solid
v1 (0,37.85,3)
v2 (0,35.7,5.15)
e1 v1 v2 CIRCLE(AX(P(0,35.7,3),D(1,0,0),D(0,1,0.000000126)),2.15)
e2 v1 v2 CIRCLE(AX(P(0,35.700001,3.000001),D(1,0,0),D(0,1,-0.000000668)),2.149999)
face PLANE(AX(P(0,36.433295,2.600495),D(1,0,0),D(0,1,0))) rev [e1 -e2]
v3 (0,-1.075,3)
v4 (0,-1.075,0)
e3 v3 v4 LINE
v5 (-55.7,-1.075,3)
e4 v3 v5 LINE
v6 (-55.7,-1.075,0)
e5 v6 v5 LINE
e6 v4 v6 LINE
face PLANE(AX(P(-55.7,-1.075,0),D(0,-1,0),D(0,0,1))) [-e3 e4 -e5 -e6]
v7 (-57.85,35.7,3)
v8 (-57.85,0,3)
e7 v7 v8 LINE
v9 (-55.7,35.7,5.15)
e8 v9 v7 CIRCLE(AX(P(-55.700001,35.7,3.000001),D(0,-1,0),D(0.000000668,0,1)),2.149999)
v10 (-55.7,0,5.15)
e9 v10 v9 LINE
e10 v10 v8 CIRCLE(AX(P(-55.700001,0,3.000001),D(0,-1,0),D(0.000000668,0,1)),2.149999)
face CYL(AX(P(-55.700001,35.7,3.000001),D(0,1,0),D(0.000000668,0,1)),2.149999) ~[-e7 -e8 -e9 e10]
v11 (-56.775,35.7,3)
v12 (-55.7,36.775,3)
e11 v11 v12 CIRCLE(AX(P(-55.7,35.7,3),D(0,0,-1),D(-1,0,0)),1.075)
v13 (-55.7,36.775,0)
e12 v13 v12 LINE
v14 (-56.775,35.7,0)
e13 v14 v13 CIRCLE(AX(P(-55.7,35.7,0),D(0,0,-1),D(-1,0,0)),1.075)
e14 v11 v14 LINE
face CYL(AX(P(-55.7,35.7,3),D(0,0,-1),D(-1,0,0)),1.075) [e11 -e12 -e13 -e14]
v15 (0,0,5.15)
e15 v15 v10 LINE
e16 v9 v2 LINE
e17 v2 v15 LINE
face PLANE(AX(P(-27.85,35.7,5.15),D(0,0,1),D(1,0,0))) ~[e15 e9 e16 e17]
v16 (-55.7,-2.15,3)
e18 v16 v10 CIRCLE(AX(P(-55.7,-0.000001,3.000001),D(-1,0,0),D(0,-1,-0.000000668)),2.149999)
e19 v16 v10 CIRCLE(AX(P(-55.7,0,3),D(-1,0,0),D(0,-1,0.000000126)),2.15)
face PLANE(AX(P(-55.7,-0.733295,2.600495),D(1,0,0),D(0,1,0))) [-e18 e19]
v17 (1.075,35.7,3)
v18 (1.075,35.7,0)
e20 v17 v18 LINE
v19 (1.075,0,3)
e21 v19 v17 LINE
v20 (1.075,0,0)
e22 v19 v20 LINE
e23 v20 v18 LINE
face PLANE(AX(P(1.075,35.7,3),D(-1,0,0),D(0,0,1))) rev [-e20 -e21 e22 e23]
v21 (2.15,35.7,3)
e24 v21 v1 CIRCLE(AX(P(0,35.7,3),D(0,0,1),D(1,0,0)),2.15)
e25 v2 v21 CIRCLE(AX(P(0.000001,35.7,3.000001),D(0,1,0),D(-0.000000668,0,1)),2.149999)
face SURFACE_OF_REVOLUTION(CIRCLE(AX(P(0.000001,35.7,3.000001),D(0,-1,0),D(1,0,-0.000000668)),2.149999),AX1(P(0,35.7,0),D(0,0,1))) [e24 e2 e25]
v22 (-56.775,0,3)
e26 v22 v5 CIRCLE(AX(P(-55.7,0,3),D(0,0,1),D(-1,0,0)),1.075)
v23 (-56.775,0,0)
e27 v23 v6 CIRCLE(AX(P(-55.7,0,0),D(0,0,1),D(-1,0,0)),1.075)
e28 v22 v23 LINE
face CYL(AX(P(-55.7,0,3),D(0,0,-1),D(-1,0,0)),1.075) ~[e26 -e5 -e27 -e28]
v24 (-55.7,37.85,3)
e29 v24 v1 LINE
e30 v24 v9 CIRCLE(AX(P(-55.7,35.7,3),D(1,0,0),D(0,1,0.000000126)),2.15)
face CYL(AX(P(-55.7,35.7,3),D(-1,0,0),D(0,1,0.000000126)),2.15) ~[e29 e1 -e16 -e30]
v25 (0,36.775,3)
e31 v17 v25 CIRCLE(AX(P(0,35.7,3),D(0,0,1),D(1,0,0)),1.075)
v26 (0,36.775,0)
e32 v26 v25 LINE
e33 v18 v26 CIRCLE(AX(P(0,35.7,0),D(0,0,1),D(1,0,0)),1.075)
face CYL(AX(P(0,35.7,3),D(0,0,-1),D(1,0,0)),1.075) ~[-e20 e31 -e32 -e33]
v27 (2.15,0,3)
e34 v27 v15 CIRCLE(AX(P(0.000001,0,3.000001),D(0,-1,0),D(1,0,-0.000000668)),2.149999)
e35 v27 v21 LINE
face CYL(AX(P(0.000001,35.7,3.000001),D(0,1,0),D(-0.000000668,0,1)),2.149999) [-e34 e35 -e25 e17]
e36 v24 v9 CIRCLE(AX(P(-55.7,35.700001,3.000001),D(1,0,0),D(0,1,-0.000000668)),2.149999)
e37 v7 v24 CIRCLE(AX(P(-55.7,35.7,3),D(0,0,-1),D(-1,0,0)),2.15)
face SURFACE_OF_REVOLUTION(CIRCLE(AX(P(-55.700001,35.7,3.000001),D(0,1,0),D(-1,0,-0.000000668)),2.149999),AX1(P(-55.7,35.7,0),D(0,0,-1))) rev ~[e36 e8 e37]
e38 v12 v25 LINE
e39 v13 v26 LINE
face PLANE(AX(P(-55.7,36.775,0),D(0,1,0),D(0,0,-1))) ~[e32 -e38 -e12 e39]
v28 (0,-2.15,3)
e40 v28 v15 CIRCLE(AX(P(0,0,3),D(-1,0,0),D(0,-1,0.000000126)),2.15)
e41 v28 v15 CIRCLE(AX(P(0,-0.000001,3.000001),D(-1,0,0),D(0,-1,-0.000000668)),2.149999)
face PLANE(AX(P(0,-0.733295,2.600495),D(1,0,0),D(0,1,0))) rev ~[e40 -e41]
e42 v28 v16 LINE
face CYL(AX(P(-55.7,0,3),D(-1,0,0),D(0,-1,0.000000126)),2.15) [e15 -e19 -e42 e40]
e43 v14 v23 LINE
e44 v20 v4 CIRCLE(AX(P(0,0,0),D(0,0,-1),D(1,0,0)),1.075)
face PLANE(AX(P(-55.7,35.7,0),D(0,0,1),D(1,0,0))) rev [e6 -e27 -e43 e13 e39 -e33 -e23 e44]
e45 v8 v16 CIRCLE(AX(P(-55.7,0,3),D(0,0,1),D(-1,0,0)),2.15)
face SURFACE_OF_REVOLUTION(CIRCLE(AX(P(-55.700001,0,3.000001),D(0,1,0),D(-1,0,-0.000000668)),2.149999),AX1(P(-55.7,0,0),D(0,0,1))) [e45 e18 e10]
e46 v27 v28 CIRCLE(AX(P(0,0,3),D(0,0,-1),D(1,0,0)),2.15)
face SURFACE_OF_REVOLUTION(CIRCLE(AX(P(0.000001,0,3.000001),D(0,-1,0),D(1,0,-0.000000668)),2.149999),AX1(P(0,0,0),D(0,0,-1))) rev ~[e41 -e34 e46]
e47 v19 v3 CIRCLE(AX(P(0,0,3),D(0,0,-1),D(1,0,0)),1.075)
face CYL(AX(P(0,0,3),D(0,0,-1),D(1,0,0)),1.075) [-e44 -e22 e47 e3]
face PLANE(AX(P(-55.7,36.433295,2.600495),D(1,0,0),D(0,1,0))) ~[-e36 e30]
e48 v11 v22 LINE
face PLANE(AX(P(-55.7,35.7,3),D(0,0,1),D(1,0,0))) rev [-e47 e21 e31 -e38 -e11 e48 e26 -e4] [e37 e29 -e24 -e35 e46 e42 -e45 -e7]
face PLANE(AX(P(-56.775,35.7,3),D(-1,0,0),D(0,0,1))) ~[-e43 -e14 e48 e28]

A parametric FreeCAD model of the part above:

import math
import FreeCAD as App
import Part
import Sketcher

doc = App.newDocument("Part")
params = doc.addObject("Spreadsheet::Sheet", "Params")
for row, (alias, value) in enumerate([
    ("sketch1_height", "3 mm"),
    ("sketch1_radius", "2.149999 mm"),
    ("revolution_angle", "90 deg"),
    ("sketch2_height", "3 mm"),
    ("sketch2_radius", "2.15 mm"),
    ("pad1_length", "27.85 mm"),
    ("sketch3_height", "3 mm"),
    ("sketch3_radius", "2.149999 mm"),
    ("pad2_length", "17.85 mm"),
    ("sketch4_height", "3 mm"),
    ("sketch4_radius", "2.149999 mm"),
    ("pad3_length", "17.85 mm"),
    ("sketch5_height", "3 mm"),
    ("sketch5_radius", "2.15 mm"),
    ("pad4_length", "27.85 mm"),
    ("sketch6_height", "3 mm"),
    ("sketch6_radius", "2.149999 mm"),
    ("revolution2_angle", "90 deg"),
], start=1):
    params.set(f"A{row}", alias)
    params.set(f"B{row}", "=" + value)
    params.setAlias(f"B{row}", alias)

body = doc.addObject("PartDesign::Body", "Body")

sketch1 = body.newObject("Sketcher::SketchObject", "Sketch")
sketch1.AttachmentSupport = (doc.getObject("XZ_Plane"), [""])
sketch1.MapMode = "FlatFace"
sketch1.addGeometry([
    Part.LineSegment(App.Vector(0, 5.2, 0), App.Vector(0, 0, 0)),
    Part.LineSegment(App.Vector(0, 0, 0), App.Vector(1.1, 0, 0)),
    Part.LineSegment(App.Vector(1.1, 0, 0), App.Vector(1.1, 3, 0)),
    Part.LineSegment(App.Vector(1.1, 3, 0), App.Vector(2.1, 3, 0)),
    Part.ArcOfCircle(Part.Circle(App.Vector(0, 3, 0), App.Vector(0, 0, 1), 2.1), math.radians(0), math.radians(90)),
], False)
sketch1.addConstraint([
    Sketcher.Constraint("Coincident", 0, 2, 1, 1),
    Sketcher.Constraint("Coincident", 1, 2, 2, 1),
    Sketcher.Constraint("Coincident", 2, 2, 3, 1),
    Sketcher.Constraint("Coincident", 3, 2, 4, 1),
    Sketcher.Constraint("Coincident", 4, 2, 0, 1),
    Sketcher.Constraint("Vertical", 0),
    Sketcher.Constraint("Horizontal", 1),
    Sketcher.Constraint("Vertical", 2),
    Sketcher.Constraint("Horizontal", 3),
    Sketcher.Constraint("Coincident", 0, 2, -1, 1),
    Sketcher.Constraint("PointOnObject", 4, 3, -2),
    Sketcher.Constraint("Horizontal", 4, 3, 2, 2),
    Sketcher.Constraint("Equal", 1, 3),
    Sketcher.Constraint("DistanceY", 2, 1, 2, 2, 3.0),
    Sketcher.Constraint("Radius", 4, 2.149999),
])
sketch1.setExpression("Constraints[13]", "Params.sketch1_height")
sketch1.setExpression("Constraints[14]", "Params.sketch1_radius")
revolution = body.newObject("PartDesign::Revolution", "Revolution")
revolution.Profile = sketch1
revolution.ReferenceAxis = (sketch1, ["V_Axis"])
revolution.setExpression("Angle", "Params.revolution_angle")
revolution.Reversed = True

sketch2 = body.newObject("Sketcher::SketchObject", "Sketch001")
sketch2.AttachmentSupport = (doc.getObject("YZ_Plane"), [""])
sketch2.MapMode = "FlatFace"
sketch2.addGeometry([
    Part.LineSegment(App.Vector(0, 5.2, 0), App.Vector(0, 0, 0)),
    Part.LineSegment(App.Vector(0, 0, 0), App.Vector(-1.1, 0, 0)),
    Part.LineSegment(App.Vector(-1.1, 0, 0), App.Vector(-1.1, 3, 0)),
    Part.LineSegment(App.Vector(-1.1, 3, 0), App.Vector(-2.1, 3, 0)),
    Part.ArcOfCircle(Part.Circle(App.Vector(0, 3, 0), App.Vector(0, 0, 1), 2.2), math.radians(90), math.radians(180)),
], False)
sketch2.addConstraint([
    Sketcher.Constraint("Coincident", 0, 2, 1, 1),
    Sketcher.Constraint("Coincident", 1, 2, 2, 1),
    Sketcher.Constraint("Coincident", 2, 2, 3, 1),
    Sketcher.Constraint("Coincident", 3, 2, 4, 2),
    Sketcher.Constraint("Coincident", 4, 1, 0, 1),
    Sketcher.Constraint("Vertical", 0),
    Sketcher.Constraint("Horizontal", 1),
    Sketcher.Constraint("Vertical", 2),
    Sketcher.Constraint("Horizontal", 3),
    Sketcher.Constraint("Coincident", 0, 2, -1, 1),
    Sketcher.Constraint("PointOnObject", 4, 3, -2),
    Sketcher.Constraint("Horizontal", 4, 3, 2, 2),
    Sketcher.Constraint("Equal", 1, 3),
    Sketcher.Constraint("DistanceY", 2, 1, 2, 2, 3.0),
    Sketcher.Constraint("Radius", 4, 2.15),
])
sketch2.setExpression("Constraints[13]", "Params.sketch2_height")
sketch2.setExpression("Constraints[14]", "Params.sketch2_radius")
pad1 = body.newObject("PartDesign::Pad", "Pad")
pad1.Profile = sketch2
pad1.setExpression("Length", "Params.pad1_length")
pad1.Reversed = True

sketch3 = body.newObject("Sketcher::SketchObject", "Sketch002")
sketch3.AttachmentSupport = (doc.getObject("XZ_Plane"), [""])
sketch3.MapMode = "FlatFace"
sketch3.addGeometry([
    Part.ArcOfCircle(Part.Circle(App.Vector(0, 3, 0), App.Vector(0, 0, 1), 2.1), math.radians(0), math.radians(90)),
    Part.LineSegment(App.Vector(2.1, 3, 0), App.Vector(1.1, 3, 0)),
    Part.LineSegment(App.Vector(1.1, 3, 0), App.Vector(1.1, 0, 0)),
    Part.LineSegment(App.Vector(1.1, 0, 0), App.Vector(-27.9, 0, 0)),
    Part.LineSegment(App.Vector(-27.9, 0, 0), App.Vector(-27.9, 5.2, 0)),
    Part.LineSegment(App.Vector(-27.9, 5.2, 0), App.Vector(0, 5.2, 0)),
], False)
sketch3.addConstraint([
    Sketcher.Constraint("Coincident", 0, 1, 1, 1),
    Sketcher.Constraint("Coincident", 1, 2, 2, 1),
    Sketcher.Constraint("Coincident", 2, 2, 3, 1),
    Sketcher.Constraint("Coincident", 3, 2, 4, 1),
    Sketcher.Constraint("Coincident", 4, 2, 5, 1),
    Sketcher.Constraint("Tangent", 5, 2, 0, 2),
    Sketcher.Constraint("Horizontal", 1),
    Sketcher.Constraint("Vertical", 2),
    Sketcher.Constraint("Horizontal", 3),
    Sketcher.Constraint("Vertical", 4),
    Sketcher.Constraint("Horizontal", 5),
    Sketcher.Constraint("PointOnObject", 0, 3, -2),
    Sketcher.Constraint("PointOnObject", 2, 2, -1),
    Sketcher.Constraint("DistanceY", 2, 2, 2, 1, 3.0),
    Sketcher.Constraint("Radius", 0, 2.149999),
    Sketcher.Constraint("DistanceY", -1, 1, 0, 3, 3.000001),
    Sketcher.Constraint("DistanceX", 3, 2, 0, 1, 30.0),
    Sketcher.Constraint("DistanceX", 1, 2, 1, 1, 1.075),
])
sketch3.setExpression("Constraints[13]", "Params.sketch3_height")
sketch3.setExpression("Constraints[14]", "Params.sketch3_radius")
pad2 = body.newObject("PartDesign::Pad", "Pad001")
pad2.Profile = sketch3
pad2.setExpression("Length", "Params.pad2_length")
pad2.Reversed = True

sketch4 = body.newObject("Sketcher::SketchObject", "Sketch003")
sketch4.AttachmentSupport = (doc.getObject("XZ_Plane"), [""])
sketch4.MapMode = "FlatFace"
sketch4.addGeometry([
    Part.ArcOfCircle(Part.Circle(App.Vector(-55.7, 3, 0), App.Vector(0, 0, 1), 2.1), math.radians(90), math.radians(180)),
    Part.LineSegment(App.Vector(-57.9, 3, 0), App.Vector(-56.8, 3, 0)),
    Part.LineSegment(App.Vector(-56.8, 3, 0), App.Vector(-56.8, 0, 0)),
    Part.LineSegment(App.Vector(-56.8, 0, 0), App.Vector(-27.9, 0, 0)),
    Part.LineSegment(App.Vector(-27.9, 0, 0), App.Vector(-27.9, 5.2, 0)),
    Part.LineSegment(App.Vector(-27.9, 5.2, 0), App.Vector(-55.7, 5.2, 0)),
], False)
sketch4.addConstraint([
    Sketcher.Constraint("Coincident", 0, 2, 1, 1),
    Sketcher.Constraint("Coincident", 1, 2, 2, 1),
    Sketcher.Constraint("Coincident", 2, 2, 3, 1),
    Sketcher.Constraint("Coincident", 3, 2, 4, 1),
    Sketcher.Constraint("Coincident", 4, 2, 5, 1),
    Sketcher.Constraint("Tangent", 5, 2, 0, 1),
    Sketcher.Constraint("Horizontal", 1),
    Sketcher.Constraint("Vertical", 2),
    Sketcher.Constraint("Horizontal", 3),
    Sketcher.Constraint("Vertical", 4),
    Sketcher.Constraint("Horizontal", 5),
    Sketcher.Constraint("PointOnObject", 2, 2, -1),
    Sketcher.Constraint("DistanceY", 2, 2, 2, 1, 3.0),
    Sketcher.Constraint("Radius", 0, 2.149999),
    Sketcher.Constraint("DistanceY", -1, 1, 0, 3, 3.000001),
    Sketcher.Constraint("DistanceX", 0, 2, 3, 2, 30.0),
    Sketcher.Constraint("DistanceX", 0, 3, -1, 1, 55.700001),
    Sketcher.Constraint("DistanceX", 1, 1, 1, 2, 1.075),
])
sketch4.setExpression("Constraints[12]", "Params.sketch4_height")
sketch4.setExpression("Constraints[13]", "Params.sketch4_radius")
pad3 = body.newObject("PartDesign::Pad", "Pad002")
pad3.Profile = sketch4
pad3.setExpression("Length", "Params.pad3_length")
pad3.Reversed = True

sketch5 = body.newObject("Sketcher::SketchObject", "Sketch004")
sketch5.AttachmentSupport = (doc.getObject("YZ_Plane"), [""])
sketch5.MapMode = "FlatFace"
sketch5.AttachmentOffset = App.Placement(App.Vector(0, 0, -55.7), App.Rotation())
sketch5.addGeometry([
    Part.LineSegment(App.Vector(0, 5.2, 0), App.Vector(0, 0, 0)),
    Part.LineSegment(App.Vector(0, 0, 0), App.Vector(-1.1, 0, 0)),
    Part.LineSegment(App.Vector(-1.1, 0, 0), App.Vector(-1.1, 3, 0)),
    Part.LineSegment(App.Vector(-1.1, 3, 0), App.Vector(-2.1, 3, 0)),
    Part.ArcOfCircle(Part.Circle(App.Vector(0, 3, 0), App.Vector(0, 0, 1), 2.2), math.radians(90), math.radians(180)),
], False)
sketch5.addConstraint([
    Sketcher.Constraint("Coincident", 0, 2, 1, 1),
    Sketcher.Constraint("Coincident", 1, 2, 2, 1),
    Sketcher.Constraint("Coincident", 2, 2, 3, 1),
    Sketcher.Constraint("Coincident", 3, 2, 4, 2),
    Sketcher.Constraint("Coincident", 4, 1, 0, 1),
    Sketcher.Constraint("Vertical", 0),
    Sketcher.Constraint("Horizontal", 1),
    Sketcher.Constraint("Vertical", 2),
    Sketcher.Constraint("Horizontal", 3),
    Sketcher.Constraint("Coincident", 0, 2, -1, 1),
    Sketcher.Constraint("PointOnObject", 4, 3, -2),
    Sketcher.Constraint("Horizontal", 4, 3, 2, 2),
    Sketcher.Constraint("Equal", 1, 3),
    Sketcher.Constraint("DistanceY", 2, 1, 2, 2, 3.0),
    Sketcher.Constraint("Radius", 4, 2.15),
])
sketch5.setExpression("Constraints[13]", "Params.sketch5_height")
sketch5.setExpression("Constraints[14]", "Params.sketch5_radius")
pad4 = body.newObject("PartDesign::Pad", "Pad003")
pad4.Profile = sketch5
pad4.setExpression("Length", "Params.pad4_length")

sketch6 = body.newObject("Sketcher::SketchObject", "Sketch005")
sketch6.AttachmentSupport = (doc.getObject("XZ_Plane"), [""])
sketch6.MapMode = "FlatFace"
sketch6.addGeometry([
    Part.LineSegment(App.Vector(-55.7, 5.2, 0), App.Vector(-55.7, 0, 0)),
    Part.LineSegment(App.Vector(-55.7, 0, 0), App.Vector(-56.8, 0, 0)),
    Part.LineSegment(App.Vector(-56.8, 0, 0), App.Vector(-56.8, 3, 0)),
    Part.LineSegment(App.Vector(-56.8, 3, 0), App.Vector(-57.9, 3, 0)),
    Part.ArcOfCircle(Part.Circle(App.Vector(-55.7, 3, 0), App.Vector(0, 0, 1), 2.1), math.radians(90), math.radians(180)),
], False)
sketch6.addGeometry(Part.LineSegment(App.Vector(-55.7, 0, 0), App.Vector(-55.7, 5.2, 0)), True)
sketch6.addConstraint([
    Sketcher.Constraint("Coincident", 0, 2, 1, 1),
    Sketcher.Constraint("Coincident", 1, 2, 2, 1),
    Sketcher.Constraint("Coincident", 2, 2, 3, 1),
    Sketcher.Constraint("Coincident", 3, 2, 4, 2),
    Sketcher.Constraint("Coincident", 4, 1, 0, 1),
    Sketcher.Constraint("Vertical", 0),
    Sketcher.Constraint("Horizontal", 1),
    Sketcher.Constraint("Vertical", 2),
    Sketcher.Constraint("Horizontal", 3),
    Sketcher.Constraint("Vertical", 5),
    Sketcher.Constraint("Coincident", 5, 1, 0, 2),
    Sketcher.Constraint("PointOnObject", 0, 2, -1),
    Sketcher.Constraint("Horizontal", 4, 3, 2, 2),
    Sketcher.Constraint("Vertical", 4, 3, 0, 2),
    Sketcher.Constraint("Equal", 1, 3),
    Sketcher.Constraint("Equal", 0, 5),
    Sketcher.Constraint("DistanceY", 2, 1, 2, 2, 3.0),
    Sketcher.Constraint("Radius", 4, 2.149999),
    Sketcher.Constraint("DistanceX", 4, 3, -1, 1, 55.700001),
])
sketch6.setExpression("Constraints[16]", "Params.sketch6_height")
sketch6.setExpression("Constraints[17]", "Params.sketch6_radius")
revolution2 = body.newObject("PartDesign::Revolution", "Revolution001")
revolution2.Profile = sketch6
revolution2.ReferenceAxis = (sketch6, ["Axis0"])
revolution2.setExpression("Angle", "Params.revolution2_angle")
doc.recompute()

datumplane = body.newObject("PartDesign::Plane", "DatumPlane")
datumplane.AttachmentSupport = (doc.getObject("XZ_Plane"), [""])
datumplane.MapMode = "FlatFace"
datumplane.AttachmentOffset = App.Placement(App.Vector(0, 0, -17.85), App.Rotation())
mirrored = body.newObject("PartDesign::Mirrored", "Mirrored")
mirrored.Originals = [pad2, pad1, revolution, pad3, pad4, revolution2]
mirrored.MirrorPlane = (datumplane, [""])
body.Tip = mirrored

doc.recompute()
